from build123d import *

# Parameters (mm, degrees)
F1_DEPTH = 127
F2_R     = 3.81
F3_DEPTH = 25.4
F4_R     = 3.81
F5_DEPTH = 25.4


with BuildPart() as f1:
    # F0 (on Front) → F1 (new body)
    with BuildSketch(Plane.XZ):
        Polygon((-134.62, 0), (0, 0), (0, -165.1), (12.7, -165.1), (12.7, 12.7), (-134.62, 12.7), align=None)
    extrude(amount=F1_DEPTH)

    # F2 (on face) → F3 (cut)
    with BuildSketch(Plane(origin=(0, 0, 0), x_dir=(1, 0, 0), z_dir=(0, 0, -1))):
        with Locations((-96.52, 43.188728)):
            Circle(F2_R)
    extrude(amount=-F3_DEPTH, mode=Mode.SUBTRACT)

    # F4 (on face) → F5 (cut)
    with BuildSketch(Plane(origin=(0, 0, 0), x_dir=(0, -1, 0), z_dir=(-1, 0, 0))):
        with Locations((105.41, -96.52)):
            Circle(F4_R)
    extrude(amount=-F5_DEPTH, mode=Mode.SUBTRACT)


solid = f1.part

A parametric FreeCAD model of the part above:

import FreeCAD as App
import Part
import Sketcher

V = App.Vector
Q = App.Units.Quantity

doc = App.newDocument("Part")
body = doc.addObject("PartDesign::Body", "Body")

# Sketch on XZ plane
sketch1 = body.newObject("Sketcher::SketchObject", "Sketch")
sketch1.AttachmentSupport = (doc.getObject("XZ_Plane"), [""])
sketch1.MapMode = "FlatFace"
sketch1.addGeometry([
    Part.LineSegment(V(-135, 0, 0), V(0, 0, 0)),  # 0
    Part.LineSegment(V(0, 0, 0), V(0, -165, 0)),  # 1
    Part.LineSegment(V(0, -165, 0), V(13, -165, 0)),  # 2
    Part.LineSegment(V(13, -165, 0), V(13, 13, 0)),  # 3
    Part.LineSegment(V(13, 13, 0), V(-135, 13, 0)),  # 4
    Part.LineSegment(V(-135, 13, 0), V(-135, 0, 0)),  # 5
], False)
sketch1.addConstraint([
    Sketcher.Constraint("Coincident", 0, 2, 1, 1),
    Sketcher.Constraint("Coincident", 1, 2, 2, 1),
    Sketcher.Constraint("Coincident", 2, 2, 3, 1),
    Sketcher.Constraint("Coincident", 3, 2, 4, 1),
    Sketcher.Constraint("Coincident", 4, 2, 5, 1),
    Sketcher.Constraint("Coincident", 5, 2, 0, 1),
    Sketcher.Constraint("Horizontal", 0),
    Sketcher.Constraint("Vertical", 1),
    Sketcher.Constraint("Horizontal", 2),
    Sketcher.Constraint("Vertical", 3),
    Sketcher.Constraint("Horizontal", 4),
    Sketcher.Constraint("Vertical", 5),
    Sketcher.Constraint("Coincident", 0, 2, -1, 1),
    Sketcher.Constraint("Equal", 2, 5),
    Sketcher.Constraint("DistanceY", 3, 1, 3, 2, Q("7 in")),
    Sketcher.Constraint("DistanceX", 0, 1, 0, 2, Q("5.3 in")),
    Sketcher.Constraint("DistanceX", 2, 1, 2, 2, Q("0.5 in")),
])
pad1 = body.newObject("PartDesign::Pad", "Pad")
pad1.Profile = sketch1
pad1.Length = Q("5 in")

# Sketch on XY plane
sketch2 = body.newObject("Sketcher::SketchObject", "Sketch001")
sketch2.AttachmentSupport = (doc.getObject("XY_Plane"), [""])
sketch2.MapMode = "FlatFace"
sketch2.addGeometry(Part.Circle(V(-96.5, -43.2, 0), V(0, 0, 1), 3.8), False)
sketch2.addConstraint([
    Sketcher.Constraint("Diameter", 0, Q("0.3 in")),
    Sketcher.Constraint("DistanceX", 0, 3, -1, 1, Q("3.8 in")),
    Sketcher.Constraint("DistanceY", 0, 3, -1, 1, 43.188728),
])
pocket1 = body.newObject("PartDesign::Pocket", "Pocket")
pocket1.Profile = sketch2
pocket1.Length = Q("1 in")
pocket1.Reversed = True

# Sketch on YZ plane
sketch3 = body.newObject("Sketcher::SketchObject", "Sketch002")
sketch3.AttachmentSupport = (doc.getObject("YZ_Plane"), [""])
sketch3.MapMode = "FlatFace"
sketch3.addGeometry(Part.Circle(V(-105.4, -96.5, 0), V(0, 0, 1), 3.8), False)
sketch3.addConstraint([
    Sketcher.Constraint("Diameter", 0, Q("0.3 in")),
    Sketcher.Constraint("DistanceY", 0, 3, -1, 1, Q("3.8 in")),
    Sketcher.Constraint("DistanceX", 0, 3, -1, 1, Q("4.15 in")),
])
pocket2 = body.newObject("PartDesign::Pocket", "Pocket001")
pocket2.Profile = sketch3
pocket2.Length = Q("1 in")
pocket2.Reversed = True

doc.recompute()
